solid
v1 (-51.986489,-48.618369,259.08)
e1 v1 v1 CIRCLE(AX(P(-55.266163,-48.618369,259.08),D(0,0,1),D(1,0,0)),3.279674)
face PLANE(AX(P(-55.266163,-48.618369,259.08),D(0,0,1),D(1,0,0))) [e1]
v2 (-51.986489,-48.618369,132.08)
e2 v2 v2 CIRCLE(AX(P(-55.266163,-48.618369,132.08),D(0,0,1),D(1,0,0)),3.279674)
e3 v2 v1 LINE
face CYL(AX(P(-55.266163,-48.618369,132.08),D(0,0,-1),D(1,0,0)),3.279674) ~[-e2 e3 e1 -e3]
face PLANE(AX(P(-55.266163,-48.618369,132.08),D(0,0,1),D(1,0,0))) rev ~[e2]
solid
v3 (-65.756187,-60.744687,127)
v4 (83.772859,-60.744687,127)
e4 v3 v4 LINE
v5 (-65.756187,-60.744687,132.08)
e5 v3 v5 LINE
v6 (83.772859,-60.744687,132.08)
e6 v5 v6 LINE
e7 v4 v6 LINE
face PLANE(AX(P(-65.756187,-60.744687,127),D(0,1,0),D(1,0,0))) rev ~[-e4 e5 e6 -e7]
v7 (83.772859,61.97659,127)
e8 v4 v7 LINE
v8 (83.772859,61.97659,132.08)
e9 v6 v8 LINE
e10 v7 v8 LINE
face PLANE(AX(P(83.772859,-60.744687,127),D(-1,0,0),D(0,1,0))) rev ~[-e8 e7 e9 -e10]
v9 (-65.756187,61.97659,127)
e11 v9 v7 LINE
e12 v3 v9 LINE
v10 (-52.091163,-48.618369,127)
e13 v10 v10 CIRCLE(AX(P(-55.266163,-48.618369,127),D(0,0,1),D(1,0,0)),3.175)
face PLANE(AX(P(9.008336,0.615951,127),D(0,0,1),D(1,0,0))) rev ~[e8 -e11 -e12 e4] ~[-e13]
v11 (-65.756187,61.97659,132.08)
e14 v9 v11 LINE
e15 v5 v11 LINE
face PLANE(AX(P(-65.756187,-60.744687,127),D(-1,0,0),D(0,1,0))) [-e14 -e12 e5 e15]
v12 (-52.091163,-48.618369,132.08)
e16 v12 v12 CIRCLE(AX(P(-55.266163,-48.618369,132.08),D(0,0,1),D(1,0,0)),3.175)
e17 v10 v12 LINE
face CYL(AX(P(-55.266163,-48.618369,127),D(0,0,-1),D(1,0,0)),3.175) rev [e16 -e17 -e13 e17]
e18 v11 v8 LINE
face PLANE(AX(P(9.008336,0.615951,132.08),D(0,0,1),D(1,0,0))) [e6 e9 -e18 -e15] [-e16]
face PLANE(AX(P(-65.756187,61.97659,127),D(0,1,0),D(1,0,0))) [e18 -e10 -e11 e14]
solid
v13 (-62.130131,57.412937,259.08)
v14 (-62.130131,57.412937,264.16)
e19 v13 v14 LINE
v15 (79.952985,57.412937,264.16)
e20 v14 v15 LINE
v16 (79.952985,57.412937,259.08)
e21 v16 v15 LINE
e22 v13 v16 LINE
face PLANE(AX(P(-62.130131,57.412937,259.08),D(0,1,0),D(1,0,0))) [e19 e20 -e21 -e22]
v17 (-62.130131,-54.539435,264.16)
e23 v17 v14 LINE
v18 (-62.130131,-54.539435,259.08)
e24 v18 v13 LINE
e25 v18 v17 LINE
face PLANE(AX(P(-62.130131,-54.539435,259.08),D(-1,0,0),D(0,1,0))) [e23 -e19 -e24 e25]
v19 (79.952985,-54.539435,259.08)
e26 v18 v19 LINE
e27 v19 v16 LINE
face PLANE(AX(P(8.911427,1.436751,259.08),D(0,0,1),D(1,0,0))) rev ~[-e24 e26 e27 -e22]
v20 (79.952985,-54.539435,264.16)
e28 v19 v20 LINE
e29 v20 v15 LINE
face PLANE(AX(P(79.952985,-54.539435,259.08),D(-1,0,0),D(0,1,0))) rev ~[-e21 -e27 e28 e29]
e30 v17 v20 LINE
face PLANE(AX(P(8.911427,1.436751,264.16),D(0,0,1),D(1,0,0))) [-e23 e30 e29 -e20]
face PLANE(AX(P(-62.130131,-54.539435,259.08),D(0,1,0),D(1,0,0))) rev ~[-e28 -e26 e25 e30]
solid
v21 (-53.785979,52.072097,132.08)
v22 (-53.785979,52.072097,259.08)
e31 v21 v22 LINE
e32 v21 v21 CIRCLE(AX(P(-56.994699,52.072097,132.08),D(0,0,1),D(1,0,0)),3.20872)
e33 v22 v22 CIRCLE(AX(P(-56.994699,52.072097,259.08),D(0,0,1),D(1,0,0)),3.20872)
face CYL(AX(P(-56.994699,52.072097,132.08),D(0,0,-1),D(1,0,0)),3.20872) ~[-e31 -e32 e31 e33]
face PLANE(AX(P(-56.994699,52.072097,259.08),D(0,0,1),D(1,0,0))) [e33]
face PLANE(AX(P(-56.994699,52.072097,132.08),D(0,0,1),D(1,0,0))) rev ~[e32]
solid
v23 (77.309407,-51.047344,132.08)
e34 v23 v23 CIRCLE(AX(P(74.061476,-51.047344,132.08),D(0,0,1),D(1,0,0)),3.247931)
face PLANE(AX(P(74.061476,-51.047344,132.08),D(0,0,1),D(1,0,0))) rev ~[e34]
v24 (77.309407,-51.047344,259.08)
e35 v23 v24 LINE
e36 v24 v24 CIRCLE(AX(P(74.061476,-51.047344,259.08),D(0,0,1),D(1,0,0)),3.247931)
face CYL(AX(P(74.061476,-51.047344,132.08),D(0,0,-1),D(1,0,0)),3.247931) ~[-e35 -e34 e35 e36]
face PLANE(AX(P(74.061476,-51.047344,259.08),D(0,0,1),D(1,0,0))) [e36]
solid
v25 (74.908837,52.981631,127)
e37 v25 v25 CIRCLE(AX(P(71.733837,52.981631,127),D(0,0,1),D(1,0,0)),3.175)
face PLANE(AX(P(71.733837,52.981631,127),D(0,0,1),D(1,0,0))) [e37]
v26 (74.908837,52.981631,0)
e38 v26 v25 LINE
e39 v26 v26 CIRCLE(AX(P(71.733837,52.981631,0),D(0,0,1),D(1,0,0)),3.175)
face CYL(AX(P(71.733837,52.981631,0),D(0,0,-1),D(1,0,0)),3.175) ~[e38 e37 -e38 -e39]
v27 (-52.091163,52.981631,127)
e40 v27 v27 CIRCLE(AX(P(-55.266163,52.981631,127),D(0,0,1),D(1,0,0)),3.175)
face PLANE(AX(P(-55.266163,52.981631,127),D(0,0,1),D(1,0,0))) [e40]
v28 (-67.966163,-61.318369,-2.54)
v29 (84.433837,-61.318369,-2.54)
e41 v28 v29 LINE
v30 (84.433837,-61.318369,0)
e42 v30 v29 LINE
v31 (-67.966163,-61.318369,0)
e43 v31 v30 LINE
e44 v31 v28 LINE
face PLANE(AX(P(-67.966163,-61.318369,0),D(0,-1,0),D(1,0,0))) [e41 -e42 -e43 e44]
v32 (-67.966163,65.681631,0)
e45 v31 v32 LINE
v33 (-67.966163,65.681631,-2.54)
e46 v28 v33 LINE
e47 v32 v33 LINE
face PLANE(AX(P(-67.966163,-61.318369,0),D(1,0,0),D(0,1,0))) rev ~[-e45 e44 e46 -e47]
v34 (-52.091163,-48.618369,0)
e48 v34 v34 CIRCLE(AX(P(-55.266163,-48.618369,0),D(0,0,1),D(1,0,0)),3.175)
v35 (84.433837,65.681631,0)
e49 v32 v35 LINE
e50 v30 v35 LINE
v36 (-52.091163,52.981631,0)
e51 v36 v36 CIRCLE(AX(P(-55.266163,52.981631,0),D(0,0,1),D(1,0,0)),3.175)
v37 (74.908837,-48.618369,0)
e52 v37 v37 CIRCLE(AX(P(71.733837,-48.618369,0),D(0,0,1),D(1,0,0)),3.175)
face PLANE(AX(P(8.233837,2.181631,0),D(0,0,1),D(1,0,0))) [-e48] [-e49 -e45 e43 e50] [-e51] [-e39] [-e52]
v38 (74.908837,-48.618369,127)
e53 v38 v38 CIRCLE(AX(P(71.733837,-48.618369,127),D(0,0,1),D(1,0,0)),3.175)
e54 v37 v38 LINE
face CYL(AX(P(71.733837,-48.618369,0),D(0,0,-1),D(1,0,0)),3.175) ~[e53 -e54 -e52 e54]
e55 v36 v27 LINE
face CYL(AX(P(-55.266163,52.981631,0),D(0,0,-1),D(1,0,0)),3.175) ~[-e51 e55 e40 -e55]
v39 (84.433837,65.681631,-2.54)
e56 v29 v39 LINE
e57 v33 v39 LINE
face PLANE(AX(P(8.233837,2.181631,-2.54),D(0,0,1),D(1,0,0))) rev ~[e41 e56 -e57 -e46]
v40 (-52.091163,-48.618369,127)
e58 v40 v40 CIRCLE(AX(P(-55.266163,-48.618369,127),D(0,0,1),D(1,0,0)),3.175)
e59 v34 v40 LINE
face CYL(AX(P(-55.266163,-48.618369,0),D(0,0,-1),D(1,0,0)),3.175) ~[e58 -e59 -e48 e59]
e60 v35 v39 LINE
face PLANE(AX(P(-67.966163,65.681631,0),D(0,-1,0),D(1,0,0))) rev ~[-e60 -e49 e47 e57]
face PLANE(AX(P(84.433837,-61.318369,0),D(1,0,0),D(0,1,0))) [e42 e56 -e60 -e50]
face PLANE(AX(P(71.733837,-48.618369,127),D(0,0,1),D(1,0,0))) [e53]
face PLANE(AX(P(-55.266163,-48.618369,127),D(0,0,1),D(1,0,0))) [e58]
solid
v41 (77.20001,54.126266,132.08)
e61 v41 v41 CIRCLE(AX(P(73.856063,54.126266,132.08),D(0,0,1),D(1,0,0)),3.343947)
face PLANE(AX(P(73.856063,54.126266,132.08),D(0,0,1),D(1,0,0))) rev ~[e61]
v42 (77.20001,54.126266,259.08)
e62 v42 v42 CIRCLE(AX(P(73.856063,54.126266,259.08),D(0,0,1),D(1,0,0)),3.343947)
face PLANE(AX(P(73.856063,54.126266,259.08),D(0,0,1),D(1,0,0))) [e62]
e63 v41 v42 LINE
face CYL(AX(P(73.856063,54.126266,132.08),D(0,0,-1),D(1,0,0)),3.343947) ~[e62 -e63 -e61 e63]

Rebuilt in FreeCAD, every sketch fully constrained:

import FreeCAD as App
import Part
import Sketcher
from FreeCAD import Vector
Q = App.Units.Quantity


def add_polygon(sketch, points):
    """Adds a closed chain of lines whose ends are joined by coincident constraints."""
    first, n = sketch.GeometryCount, len(points)
    for a, b in zip(points, points[1:] + points[:1]):
        sketch.addGeometry(Part.LineSegment(App.Vector(*a, 0), App.Vector(*b, 0)), False)
    for i in range(n):
        sketch.addConstraint(Sketcher.Constraint("Coincident", first + i, 2, first + (i + 1) % n, 1))

doc = App.newDocument("Part")
params = doc.addObject("Spreadsheet::Sheet", "Params")
for row, (alias, value) in enumerate([
    ("sketch1_width", "6 in"),
    ("sketch1_height", "5 in"),
    ("pad1_length", "0.1 in"),
    ("sketch2_diameter", "0.25 in"),
    ("pad2_length", "5 in"),
    ("sketch3_diameter", "0.25 in"),
    ("pad3_length", "0.2 in"),
    ("pad4_length", "5 in"),
    ("pad5_length", "0.2 in"),
], start=1):
    params.set(f"A{row}", alias)
    params.set(f"B{row}", "=" + value)
    params.setAlias(f"B{row}", alias)

body = doc.addObject("PartDesign::Body", "Body")

# Sketch on XY plane
sketch1 = body.newObject("Sketcher::SketchObject", "Sketch")
sketch1.AttachmentSupport = (doc.getObject("XY_Plane"), [""])
sketch1.MapMode = "FlatFace"
add_polygon(sketch1, [(-68, 66), (-68, -61), (84, -61), (84, 66)])  # lines 0-3
sketch1.addConstraint(Sketcher.Constraint("Vertical", 0))
sketch1.addConstraint(Sketcher.Constraint("Horizontal", 1))
sketch1.addConstraint(Sketcher.Constraint("Vertical", 2))
sketch1.addConstraint(Sketcher.Constraint("Horizontal", 3))
sketch1.addConstraint(Sketcher.Constraint("DistanceX", 1, 1, 1, 2, Q("6 in")))
sketch1.addConstraint(Sketcher.Constraint("DistanceY", 0, 2, 0, 1, Q("5 in")))
sketch1.addConstraint(Sketcher.Constraint("DistanceY", 0, 2, -1, 1, Q("61.318369 mm")))
sketch1.addConstraint(Sketcher.Constraint("DistanceX", 0, 2, -1, 1, Q("67.966163 mm")))
sketch1.setExpression("Constraints[8]", "Params.sketch1_width")
sketch1.setExpression("Constraints[9]", "Params.sketch1_height")
pad1 = body.newObject("PartDesign::Pad", "Pad")
pad1.Profile = sketch1
pad1.setExpression("Length", "Params.pad1_length")
pad1.Reversed = True

# Sketch on XY plane
sketch2 = body.newObject("Sketcher::SketchObject", "Sketch001")
sketch2.AttachmentSupport = (doc.getObject("XY_Plane"), [""])
sketch2.MapMode = "FlatFace"
sketch2.addGeometry(Part.Circle(Vector(-55.3, -48.6, 0), Vector(0, 0, 1), 3.2), False)
sketch2.addGeometry(Part.Circle(Vector(-55.3, 53, 0), Vector(0, 0, 1), 3.2), False)
sketch2.addGeometry(Part.Circle(Vector(71.7, 53, 0), Vector(0, 0, 1), 3.2), False)
sketch2.addGeometry(Part.Circle(Vector(71.7, -48.6, 0), Vector(0, 0, 1), 3.2), False)
sketch2.addConstraint(Sketcher.Constraint("Equal", 0, 1))
sketch2.addConstraint(Sketcher.Constraint("Equal", 1, 2))
sketch2.addConstraint(Sketcher.Constraint("Equal", 2, 3))
sketch2.addConstraint(Sketcher.Constraint("Horizontal", 1, 3, 2, 3))
sketch2.addConstraint(Sketcher.Constraint("Horizontal", 0, 3, 3, 3))
sketch2.addConstraint(Sketcher.Constraint("Vertical", 0, 3, 1, 3))
sketch2.addConstraint(Sketcher.Constraint("Vertical", 2, 3, 3, 3))
sketch2.addConstraint(Sketcher.Constraint("Diameter", 0, Q("0.25 in")))
sketch2.addConstraint(Sketcher.Constraint("DistanceY", 0, 3, 1, 3, Q("4 in")))
sketch2.addConstraint(Sketcher.Constraint("DistanceX", 1, 3, 2, 3, Q("5 in")))
sketch2.addConstraint(Sketcher.Constraint("DistanceY", 0, 3, -1, 1, Q("48.618369 mm")))
sketch2.addConstraint(Sketcher.Constraint("DistanceX", 0, 3, -1, 1, Q("55.266163 mm")))
sketch2.setExpression("Constraints[7]", "Params.sketch2_diameter")
pad2 = body.newObject("PartDesign::Pad", "Pad001")
pad2.Profile = sketch2
pad2.setExpression("Length", "Params.pad2_length")
body2 = doc.addObject("PartDesign::Body", "Body001")

# Sketch on XY plane
sketch3 = body2.newObject("Sketcher::SketchObject", "Sketch002")
sketch3.AttachmentSupport = (doc.getObject("XY_Plane001"), [""])
sketch3.MapMode = "FlatFace"
sketch3.AttachmentOffset = App.Placement(Vector(0, 0, 5 * 25.4), App.Rotation())
add_polygon(sketch3, [(-65.8, 62), (-65.8, -60.7), (83.8, -60.7), (83.8, 62)])  # lines 0-3
sketch3.addGeometry(Part.Circle(Vector(-55.3, -48.6, 0), Vector(0, 0, 1), 3.2), False)  # 4
sketch3.addConstraint(Sketcher.Constraint("Vertical", 0))
sketch3.addConstraint(Sketcher.Constraint("Horizontal", 1))
sketch3.addConstraint(Sketcher.Constraint("Vertical", 2))
sketch3.addConstraint(Sketcher.Constraint("Horizontal", 3))
sketch3.addConstraint(Sketcher.Constraint("Diameter", 4, Q("0.25 in")))
sketch3.addConstraint(Sketcher.Constraint("DistanceX", 1, 1, 1, 2, Q("149.529047 mm")))
sketch3.addConstraint(Sketcher.Constraint("DistanceY", 0, 2, 0, 1, Q("122.721277 mm")))
sketch3.addConstraint(Sketcher.Constraint("DistanceY", 4, 3, -1, 1, Q("48.618369 mm")))
sketch3.addConstraint(Sketcher.Constraint("DistanceX", -1, 1, 1, 2, Q("83.772859 mm")))
sketch3.addConstraint(Sketcher.Constraint("DistanceY", -1, 1, 2, 2, Q("61.97659 mm")))
sketch3.addConstraint(Sketcher.Constraint("DistanceX", 4, 3, -1, 1, Q("55.266163 mm")))
sketch3.setExpression("Constraints[8]", "Params.sketch3_diameter")
pad3 = body2.newObject("PartDesign::Pad", "Pad002")
pad3.Profile = sketch3
pad3.setExpression("Length", "Params.pad3_length")
body3 = doc.addObject("PartDesign::Body", "Body002")
body3.AllowCompound = True

# Sketch on XY plane
sketch4 = body3.newObject("Sketcher::SketchObject", "Sketch003")
sketch4.AttachmentSupport = (doc.getObject("XY_Plane002"), [""])
sketch4.MapMode = "FlatFace"
sketch4.AttachmentOffset = App.Placement(Vector(0, 0, 5.2 * 25.4), App.Rotation())
sketch4.addGeometry(Part.Circle(Vector(-55.3, -48.6, 0), Vector(0, 0, 1), 3.3), False)
sketch4.addGeometry(Part.Circle(Vector(-57, 52.1, 0), Vector(0, 0, 1), 3.2), False)
sketch4.addGeometry(Part.Circle(Vector(73.9, 54.1, 0), Vector(0, 0, 1), 3.3), False)
sketch4.addGeometry(Part.Circle(Vector(74.1, -51, 0), Vector(0, 0, 1), 3.2), False)
sketch4.addConstraint(Sketcher.Constraint("Diameter", 1, Q("6.41744 mm")))
sketch4.addConstraint(Sketcher.Constraint("Diameter", 3, Q("6.495862 mm")))
sketch4.addConstraint(Sketcher.Constraint("Diameter", 0, Q("6.559348 mm")))
sketch4.addConstraint(Sketcher.Constraint("Diameter", 2, Q("6.687894 mm")))
sketch4.addConstraint(Sketcher.Constraint("DistanceX", 1, 3, -1, 1, Q("56.994699 mm")))
sketch4.addConstraint(Sketcher.Constraint("DistanceY", 0, 3, -1, 1, Q("48.618369 mm")))
sketch4.addConstraint(Sketcher.Constraint("DistanceX", 1, 3, 2, 3, Q("130.850762 mm")))
sketch4.addConstraint(Sketcher.Constraint("DistanceY", 1, 3, 2, 3, Q("2.054169 mm")))
sketch4.addConstraint(Sketcher.Constraint("DistanceY", 3, 3, 2, 3, Q("105.17361 mm")))
sketch4.addConstraint(Sketcher.Constraint("DistanceX", 0, 3, 3, 3, Q("129.327639 mm")))
sketch4.addConstraint(Sketcher.Constraint("DistanceX", 0, 3, -1, 1, Q("55.266163 mm")))
sketch4.addConstraint(Sketcher.Constraint("DistanceY", -1, 1, 1, 3, Q("52.072097 mm")))
pad4 = body3.newObject("PartDesign::Pad", "Pad003")
pad4.Profile = sketch4
pad4.setExpression("Length", "Params.pad4_length")
body4 = doc.addObject("PartDesign::Body", "Body003")

# Sketch on XY plane
sketch5 = body4.newObject("Sketcher::SketchObject", "Sketch004")
sketch5.AttachmentSupport = (doc.getObject("XY_Plane003"), [""])
sketch5.MapMode = "FlatFace"
sketch5.AttachmentOffset = App.Placement(Vector(0, 0, 10.2 * 25.4), App.Rotation())
add_polygon(sketch5, [(-62, 57), (-62, -55), (80, -55), (80, 57)])  # lines 0-3
sketch5.addConstraint(Sketcher.Constraint("Vertical", 0))
sketch5.addConstraint(Sketcher.Constraint("Horizontal", 1))
sketch5.addConstraint(Sketcher.Constraint("Vertical", 2))
sketch5.addConstraint(Sketcher.Constraint("Horizontal", 3))
sketch5.addConstraint(Sketcher.Constraint("DistanceY", 0, 2, 0, 1, Q("111.952372 mm")))
sketch5.addConstraint(Sketcher.Constraint("DistanceX", 1, 1, 1, 2, Q("142.083116 mm")))
sketch5.addConstraint(Sketcher.Constraint("DistanceX", 0, 2, -1, 1, Q("62.130131 mm")))
sketch5.addConstraint(Sketcher.Constraint("DistanceY", 0, 2, -1, 1, Q("54.539435 mm")))
pad5 = body4.newObject("PartDesign::Pad", "Pad004")
pad5.Profile = sketch5
pad5.setExpression("Length", "Params.pad5_length")

doc.recompute()
